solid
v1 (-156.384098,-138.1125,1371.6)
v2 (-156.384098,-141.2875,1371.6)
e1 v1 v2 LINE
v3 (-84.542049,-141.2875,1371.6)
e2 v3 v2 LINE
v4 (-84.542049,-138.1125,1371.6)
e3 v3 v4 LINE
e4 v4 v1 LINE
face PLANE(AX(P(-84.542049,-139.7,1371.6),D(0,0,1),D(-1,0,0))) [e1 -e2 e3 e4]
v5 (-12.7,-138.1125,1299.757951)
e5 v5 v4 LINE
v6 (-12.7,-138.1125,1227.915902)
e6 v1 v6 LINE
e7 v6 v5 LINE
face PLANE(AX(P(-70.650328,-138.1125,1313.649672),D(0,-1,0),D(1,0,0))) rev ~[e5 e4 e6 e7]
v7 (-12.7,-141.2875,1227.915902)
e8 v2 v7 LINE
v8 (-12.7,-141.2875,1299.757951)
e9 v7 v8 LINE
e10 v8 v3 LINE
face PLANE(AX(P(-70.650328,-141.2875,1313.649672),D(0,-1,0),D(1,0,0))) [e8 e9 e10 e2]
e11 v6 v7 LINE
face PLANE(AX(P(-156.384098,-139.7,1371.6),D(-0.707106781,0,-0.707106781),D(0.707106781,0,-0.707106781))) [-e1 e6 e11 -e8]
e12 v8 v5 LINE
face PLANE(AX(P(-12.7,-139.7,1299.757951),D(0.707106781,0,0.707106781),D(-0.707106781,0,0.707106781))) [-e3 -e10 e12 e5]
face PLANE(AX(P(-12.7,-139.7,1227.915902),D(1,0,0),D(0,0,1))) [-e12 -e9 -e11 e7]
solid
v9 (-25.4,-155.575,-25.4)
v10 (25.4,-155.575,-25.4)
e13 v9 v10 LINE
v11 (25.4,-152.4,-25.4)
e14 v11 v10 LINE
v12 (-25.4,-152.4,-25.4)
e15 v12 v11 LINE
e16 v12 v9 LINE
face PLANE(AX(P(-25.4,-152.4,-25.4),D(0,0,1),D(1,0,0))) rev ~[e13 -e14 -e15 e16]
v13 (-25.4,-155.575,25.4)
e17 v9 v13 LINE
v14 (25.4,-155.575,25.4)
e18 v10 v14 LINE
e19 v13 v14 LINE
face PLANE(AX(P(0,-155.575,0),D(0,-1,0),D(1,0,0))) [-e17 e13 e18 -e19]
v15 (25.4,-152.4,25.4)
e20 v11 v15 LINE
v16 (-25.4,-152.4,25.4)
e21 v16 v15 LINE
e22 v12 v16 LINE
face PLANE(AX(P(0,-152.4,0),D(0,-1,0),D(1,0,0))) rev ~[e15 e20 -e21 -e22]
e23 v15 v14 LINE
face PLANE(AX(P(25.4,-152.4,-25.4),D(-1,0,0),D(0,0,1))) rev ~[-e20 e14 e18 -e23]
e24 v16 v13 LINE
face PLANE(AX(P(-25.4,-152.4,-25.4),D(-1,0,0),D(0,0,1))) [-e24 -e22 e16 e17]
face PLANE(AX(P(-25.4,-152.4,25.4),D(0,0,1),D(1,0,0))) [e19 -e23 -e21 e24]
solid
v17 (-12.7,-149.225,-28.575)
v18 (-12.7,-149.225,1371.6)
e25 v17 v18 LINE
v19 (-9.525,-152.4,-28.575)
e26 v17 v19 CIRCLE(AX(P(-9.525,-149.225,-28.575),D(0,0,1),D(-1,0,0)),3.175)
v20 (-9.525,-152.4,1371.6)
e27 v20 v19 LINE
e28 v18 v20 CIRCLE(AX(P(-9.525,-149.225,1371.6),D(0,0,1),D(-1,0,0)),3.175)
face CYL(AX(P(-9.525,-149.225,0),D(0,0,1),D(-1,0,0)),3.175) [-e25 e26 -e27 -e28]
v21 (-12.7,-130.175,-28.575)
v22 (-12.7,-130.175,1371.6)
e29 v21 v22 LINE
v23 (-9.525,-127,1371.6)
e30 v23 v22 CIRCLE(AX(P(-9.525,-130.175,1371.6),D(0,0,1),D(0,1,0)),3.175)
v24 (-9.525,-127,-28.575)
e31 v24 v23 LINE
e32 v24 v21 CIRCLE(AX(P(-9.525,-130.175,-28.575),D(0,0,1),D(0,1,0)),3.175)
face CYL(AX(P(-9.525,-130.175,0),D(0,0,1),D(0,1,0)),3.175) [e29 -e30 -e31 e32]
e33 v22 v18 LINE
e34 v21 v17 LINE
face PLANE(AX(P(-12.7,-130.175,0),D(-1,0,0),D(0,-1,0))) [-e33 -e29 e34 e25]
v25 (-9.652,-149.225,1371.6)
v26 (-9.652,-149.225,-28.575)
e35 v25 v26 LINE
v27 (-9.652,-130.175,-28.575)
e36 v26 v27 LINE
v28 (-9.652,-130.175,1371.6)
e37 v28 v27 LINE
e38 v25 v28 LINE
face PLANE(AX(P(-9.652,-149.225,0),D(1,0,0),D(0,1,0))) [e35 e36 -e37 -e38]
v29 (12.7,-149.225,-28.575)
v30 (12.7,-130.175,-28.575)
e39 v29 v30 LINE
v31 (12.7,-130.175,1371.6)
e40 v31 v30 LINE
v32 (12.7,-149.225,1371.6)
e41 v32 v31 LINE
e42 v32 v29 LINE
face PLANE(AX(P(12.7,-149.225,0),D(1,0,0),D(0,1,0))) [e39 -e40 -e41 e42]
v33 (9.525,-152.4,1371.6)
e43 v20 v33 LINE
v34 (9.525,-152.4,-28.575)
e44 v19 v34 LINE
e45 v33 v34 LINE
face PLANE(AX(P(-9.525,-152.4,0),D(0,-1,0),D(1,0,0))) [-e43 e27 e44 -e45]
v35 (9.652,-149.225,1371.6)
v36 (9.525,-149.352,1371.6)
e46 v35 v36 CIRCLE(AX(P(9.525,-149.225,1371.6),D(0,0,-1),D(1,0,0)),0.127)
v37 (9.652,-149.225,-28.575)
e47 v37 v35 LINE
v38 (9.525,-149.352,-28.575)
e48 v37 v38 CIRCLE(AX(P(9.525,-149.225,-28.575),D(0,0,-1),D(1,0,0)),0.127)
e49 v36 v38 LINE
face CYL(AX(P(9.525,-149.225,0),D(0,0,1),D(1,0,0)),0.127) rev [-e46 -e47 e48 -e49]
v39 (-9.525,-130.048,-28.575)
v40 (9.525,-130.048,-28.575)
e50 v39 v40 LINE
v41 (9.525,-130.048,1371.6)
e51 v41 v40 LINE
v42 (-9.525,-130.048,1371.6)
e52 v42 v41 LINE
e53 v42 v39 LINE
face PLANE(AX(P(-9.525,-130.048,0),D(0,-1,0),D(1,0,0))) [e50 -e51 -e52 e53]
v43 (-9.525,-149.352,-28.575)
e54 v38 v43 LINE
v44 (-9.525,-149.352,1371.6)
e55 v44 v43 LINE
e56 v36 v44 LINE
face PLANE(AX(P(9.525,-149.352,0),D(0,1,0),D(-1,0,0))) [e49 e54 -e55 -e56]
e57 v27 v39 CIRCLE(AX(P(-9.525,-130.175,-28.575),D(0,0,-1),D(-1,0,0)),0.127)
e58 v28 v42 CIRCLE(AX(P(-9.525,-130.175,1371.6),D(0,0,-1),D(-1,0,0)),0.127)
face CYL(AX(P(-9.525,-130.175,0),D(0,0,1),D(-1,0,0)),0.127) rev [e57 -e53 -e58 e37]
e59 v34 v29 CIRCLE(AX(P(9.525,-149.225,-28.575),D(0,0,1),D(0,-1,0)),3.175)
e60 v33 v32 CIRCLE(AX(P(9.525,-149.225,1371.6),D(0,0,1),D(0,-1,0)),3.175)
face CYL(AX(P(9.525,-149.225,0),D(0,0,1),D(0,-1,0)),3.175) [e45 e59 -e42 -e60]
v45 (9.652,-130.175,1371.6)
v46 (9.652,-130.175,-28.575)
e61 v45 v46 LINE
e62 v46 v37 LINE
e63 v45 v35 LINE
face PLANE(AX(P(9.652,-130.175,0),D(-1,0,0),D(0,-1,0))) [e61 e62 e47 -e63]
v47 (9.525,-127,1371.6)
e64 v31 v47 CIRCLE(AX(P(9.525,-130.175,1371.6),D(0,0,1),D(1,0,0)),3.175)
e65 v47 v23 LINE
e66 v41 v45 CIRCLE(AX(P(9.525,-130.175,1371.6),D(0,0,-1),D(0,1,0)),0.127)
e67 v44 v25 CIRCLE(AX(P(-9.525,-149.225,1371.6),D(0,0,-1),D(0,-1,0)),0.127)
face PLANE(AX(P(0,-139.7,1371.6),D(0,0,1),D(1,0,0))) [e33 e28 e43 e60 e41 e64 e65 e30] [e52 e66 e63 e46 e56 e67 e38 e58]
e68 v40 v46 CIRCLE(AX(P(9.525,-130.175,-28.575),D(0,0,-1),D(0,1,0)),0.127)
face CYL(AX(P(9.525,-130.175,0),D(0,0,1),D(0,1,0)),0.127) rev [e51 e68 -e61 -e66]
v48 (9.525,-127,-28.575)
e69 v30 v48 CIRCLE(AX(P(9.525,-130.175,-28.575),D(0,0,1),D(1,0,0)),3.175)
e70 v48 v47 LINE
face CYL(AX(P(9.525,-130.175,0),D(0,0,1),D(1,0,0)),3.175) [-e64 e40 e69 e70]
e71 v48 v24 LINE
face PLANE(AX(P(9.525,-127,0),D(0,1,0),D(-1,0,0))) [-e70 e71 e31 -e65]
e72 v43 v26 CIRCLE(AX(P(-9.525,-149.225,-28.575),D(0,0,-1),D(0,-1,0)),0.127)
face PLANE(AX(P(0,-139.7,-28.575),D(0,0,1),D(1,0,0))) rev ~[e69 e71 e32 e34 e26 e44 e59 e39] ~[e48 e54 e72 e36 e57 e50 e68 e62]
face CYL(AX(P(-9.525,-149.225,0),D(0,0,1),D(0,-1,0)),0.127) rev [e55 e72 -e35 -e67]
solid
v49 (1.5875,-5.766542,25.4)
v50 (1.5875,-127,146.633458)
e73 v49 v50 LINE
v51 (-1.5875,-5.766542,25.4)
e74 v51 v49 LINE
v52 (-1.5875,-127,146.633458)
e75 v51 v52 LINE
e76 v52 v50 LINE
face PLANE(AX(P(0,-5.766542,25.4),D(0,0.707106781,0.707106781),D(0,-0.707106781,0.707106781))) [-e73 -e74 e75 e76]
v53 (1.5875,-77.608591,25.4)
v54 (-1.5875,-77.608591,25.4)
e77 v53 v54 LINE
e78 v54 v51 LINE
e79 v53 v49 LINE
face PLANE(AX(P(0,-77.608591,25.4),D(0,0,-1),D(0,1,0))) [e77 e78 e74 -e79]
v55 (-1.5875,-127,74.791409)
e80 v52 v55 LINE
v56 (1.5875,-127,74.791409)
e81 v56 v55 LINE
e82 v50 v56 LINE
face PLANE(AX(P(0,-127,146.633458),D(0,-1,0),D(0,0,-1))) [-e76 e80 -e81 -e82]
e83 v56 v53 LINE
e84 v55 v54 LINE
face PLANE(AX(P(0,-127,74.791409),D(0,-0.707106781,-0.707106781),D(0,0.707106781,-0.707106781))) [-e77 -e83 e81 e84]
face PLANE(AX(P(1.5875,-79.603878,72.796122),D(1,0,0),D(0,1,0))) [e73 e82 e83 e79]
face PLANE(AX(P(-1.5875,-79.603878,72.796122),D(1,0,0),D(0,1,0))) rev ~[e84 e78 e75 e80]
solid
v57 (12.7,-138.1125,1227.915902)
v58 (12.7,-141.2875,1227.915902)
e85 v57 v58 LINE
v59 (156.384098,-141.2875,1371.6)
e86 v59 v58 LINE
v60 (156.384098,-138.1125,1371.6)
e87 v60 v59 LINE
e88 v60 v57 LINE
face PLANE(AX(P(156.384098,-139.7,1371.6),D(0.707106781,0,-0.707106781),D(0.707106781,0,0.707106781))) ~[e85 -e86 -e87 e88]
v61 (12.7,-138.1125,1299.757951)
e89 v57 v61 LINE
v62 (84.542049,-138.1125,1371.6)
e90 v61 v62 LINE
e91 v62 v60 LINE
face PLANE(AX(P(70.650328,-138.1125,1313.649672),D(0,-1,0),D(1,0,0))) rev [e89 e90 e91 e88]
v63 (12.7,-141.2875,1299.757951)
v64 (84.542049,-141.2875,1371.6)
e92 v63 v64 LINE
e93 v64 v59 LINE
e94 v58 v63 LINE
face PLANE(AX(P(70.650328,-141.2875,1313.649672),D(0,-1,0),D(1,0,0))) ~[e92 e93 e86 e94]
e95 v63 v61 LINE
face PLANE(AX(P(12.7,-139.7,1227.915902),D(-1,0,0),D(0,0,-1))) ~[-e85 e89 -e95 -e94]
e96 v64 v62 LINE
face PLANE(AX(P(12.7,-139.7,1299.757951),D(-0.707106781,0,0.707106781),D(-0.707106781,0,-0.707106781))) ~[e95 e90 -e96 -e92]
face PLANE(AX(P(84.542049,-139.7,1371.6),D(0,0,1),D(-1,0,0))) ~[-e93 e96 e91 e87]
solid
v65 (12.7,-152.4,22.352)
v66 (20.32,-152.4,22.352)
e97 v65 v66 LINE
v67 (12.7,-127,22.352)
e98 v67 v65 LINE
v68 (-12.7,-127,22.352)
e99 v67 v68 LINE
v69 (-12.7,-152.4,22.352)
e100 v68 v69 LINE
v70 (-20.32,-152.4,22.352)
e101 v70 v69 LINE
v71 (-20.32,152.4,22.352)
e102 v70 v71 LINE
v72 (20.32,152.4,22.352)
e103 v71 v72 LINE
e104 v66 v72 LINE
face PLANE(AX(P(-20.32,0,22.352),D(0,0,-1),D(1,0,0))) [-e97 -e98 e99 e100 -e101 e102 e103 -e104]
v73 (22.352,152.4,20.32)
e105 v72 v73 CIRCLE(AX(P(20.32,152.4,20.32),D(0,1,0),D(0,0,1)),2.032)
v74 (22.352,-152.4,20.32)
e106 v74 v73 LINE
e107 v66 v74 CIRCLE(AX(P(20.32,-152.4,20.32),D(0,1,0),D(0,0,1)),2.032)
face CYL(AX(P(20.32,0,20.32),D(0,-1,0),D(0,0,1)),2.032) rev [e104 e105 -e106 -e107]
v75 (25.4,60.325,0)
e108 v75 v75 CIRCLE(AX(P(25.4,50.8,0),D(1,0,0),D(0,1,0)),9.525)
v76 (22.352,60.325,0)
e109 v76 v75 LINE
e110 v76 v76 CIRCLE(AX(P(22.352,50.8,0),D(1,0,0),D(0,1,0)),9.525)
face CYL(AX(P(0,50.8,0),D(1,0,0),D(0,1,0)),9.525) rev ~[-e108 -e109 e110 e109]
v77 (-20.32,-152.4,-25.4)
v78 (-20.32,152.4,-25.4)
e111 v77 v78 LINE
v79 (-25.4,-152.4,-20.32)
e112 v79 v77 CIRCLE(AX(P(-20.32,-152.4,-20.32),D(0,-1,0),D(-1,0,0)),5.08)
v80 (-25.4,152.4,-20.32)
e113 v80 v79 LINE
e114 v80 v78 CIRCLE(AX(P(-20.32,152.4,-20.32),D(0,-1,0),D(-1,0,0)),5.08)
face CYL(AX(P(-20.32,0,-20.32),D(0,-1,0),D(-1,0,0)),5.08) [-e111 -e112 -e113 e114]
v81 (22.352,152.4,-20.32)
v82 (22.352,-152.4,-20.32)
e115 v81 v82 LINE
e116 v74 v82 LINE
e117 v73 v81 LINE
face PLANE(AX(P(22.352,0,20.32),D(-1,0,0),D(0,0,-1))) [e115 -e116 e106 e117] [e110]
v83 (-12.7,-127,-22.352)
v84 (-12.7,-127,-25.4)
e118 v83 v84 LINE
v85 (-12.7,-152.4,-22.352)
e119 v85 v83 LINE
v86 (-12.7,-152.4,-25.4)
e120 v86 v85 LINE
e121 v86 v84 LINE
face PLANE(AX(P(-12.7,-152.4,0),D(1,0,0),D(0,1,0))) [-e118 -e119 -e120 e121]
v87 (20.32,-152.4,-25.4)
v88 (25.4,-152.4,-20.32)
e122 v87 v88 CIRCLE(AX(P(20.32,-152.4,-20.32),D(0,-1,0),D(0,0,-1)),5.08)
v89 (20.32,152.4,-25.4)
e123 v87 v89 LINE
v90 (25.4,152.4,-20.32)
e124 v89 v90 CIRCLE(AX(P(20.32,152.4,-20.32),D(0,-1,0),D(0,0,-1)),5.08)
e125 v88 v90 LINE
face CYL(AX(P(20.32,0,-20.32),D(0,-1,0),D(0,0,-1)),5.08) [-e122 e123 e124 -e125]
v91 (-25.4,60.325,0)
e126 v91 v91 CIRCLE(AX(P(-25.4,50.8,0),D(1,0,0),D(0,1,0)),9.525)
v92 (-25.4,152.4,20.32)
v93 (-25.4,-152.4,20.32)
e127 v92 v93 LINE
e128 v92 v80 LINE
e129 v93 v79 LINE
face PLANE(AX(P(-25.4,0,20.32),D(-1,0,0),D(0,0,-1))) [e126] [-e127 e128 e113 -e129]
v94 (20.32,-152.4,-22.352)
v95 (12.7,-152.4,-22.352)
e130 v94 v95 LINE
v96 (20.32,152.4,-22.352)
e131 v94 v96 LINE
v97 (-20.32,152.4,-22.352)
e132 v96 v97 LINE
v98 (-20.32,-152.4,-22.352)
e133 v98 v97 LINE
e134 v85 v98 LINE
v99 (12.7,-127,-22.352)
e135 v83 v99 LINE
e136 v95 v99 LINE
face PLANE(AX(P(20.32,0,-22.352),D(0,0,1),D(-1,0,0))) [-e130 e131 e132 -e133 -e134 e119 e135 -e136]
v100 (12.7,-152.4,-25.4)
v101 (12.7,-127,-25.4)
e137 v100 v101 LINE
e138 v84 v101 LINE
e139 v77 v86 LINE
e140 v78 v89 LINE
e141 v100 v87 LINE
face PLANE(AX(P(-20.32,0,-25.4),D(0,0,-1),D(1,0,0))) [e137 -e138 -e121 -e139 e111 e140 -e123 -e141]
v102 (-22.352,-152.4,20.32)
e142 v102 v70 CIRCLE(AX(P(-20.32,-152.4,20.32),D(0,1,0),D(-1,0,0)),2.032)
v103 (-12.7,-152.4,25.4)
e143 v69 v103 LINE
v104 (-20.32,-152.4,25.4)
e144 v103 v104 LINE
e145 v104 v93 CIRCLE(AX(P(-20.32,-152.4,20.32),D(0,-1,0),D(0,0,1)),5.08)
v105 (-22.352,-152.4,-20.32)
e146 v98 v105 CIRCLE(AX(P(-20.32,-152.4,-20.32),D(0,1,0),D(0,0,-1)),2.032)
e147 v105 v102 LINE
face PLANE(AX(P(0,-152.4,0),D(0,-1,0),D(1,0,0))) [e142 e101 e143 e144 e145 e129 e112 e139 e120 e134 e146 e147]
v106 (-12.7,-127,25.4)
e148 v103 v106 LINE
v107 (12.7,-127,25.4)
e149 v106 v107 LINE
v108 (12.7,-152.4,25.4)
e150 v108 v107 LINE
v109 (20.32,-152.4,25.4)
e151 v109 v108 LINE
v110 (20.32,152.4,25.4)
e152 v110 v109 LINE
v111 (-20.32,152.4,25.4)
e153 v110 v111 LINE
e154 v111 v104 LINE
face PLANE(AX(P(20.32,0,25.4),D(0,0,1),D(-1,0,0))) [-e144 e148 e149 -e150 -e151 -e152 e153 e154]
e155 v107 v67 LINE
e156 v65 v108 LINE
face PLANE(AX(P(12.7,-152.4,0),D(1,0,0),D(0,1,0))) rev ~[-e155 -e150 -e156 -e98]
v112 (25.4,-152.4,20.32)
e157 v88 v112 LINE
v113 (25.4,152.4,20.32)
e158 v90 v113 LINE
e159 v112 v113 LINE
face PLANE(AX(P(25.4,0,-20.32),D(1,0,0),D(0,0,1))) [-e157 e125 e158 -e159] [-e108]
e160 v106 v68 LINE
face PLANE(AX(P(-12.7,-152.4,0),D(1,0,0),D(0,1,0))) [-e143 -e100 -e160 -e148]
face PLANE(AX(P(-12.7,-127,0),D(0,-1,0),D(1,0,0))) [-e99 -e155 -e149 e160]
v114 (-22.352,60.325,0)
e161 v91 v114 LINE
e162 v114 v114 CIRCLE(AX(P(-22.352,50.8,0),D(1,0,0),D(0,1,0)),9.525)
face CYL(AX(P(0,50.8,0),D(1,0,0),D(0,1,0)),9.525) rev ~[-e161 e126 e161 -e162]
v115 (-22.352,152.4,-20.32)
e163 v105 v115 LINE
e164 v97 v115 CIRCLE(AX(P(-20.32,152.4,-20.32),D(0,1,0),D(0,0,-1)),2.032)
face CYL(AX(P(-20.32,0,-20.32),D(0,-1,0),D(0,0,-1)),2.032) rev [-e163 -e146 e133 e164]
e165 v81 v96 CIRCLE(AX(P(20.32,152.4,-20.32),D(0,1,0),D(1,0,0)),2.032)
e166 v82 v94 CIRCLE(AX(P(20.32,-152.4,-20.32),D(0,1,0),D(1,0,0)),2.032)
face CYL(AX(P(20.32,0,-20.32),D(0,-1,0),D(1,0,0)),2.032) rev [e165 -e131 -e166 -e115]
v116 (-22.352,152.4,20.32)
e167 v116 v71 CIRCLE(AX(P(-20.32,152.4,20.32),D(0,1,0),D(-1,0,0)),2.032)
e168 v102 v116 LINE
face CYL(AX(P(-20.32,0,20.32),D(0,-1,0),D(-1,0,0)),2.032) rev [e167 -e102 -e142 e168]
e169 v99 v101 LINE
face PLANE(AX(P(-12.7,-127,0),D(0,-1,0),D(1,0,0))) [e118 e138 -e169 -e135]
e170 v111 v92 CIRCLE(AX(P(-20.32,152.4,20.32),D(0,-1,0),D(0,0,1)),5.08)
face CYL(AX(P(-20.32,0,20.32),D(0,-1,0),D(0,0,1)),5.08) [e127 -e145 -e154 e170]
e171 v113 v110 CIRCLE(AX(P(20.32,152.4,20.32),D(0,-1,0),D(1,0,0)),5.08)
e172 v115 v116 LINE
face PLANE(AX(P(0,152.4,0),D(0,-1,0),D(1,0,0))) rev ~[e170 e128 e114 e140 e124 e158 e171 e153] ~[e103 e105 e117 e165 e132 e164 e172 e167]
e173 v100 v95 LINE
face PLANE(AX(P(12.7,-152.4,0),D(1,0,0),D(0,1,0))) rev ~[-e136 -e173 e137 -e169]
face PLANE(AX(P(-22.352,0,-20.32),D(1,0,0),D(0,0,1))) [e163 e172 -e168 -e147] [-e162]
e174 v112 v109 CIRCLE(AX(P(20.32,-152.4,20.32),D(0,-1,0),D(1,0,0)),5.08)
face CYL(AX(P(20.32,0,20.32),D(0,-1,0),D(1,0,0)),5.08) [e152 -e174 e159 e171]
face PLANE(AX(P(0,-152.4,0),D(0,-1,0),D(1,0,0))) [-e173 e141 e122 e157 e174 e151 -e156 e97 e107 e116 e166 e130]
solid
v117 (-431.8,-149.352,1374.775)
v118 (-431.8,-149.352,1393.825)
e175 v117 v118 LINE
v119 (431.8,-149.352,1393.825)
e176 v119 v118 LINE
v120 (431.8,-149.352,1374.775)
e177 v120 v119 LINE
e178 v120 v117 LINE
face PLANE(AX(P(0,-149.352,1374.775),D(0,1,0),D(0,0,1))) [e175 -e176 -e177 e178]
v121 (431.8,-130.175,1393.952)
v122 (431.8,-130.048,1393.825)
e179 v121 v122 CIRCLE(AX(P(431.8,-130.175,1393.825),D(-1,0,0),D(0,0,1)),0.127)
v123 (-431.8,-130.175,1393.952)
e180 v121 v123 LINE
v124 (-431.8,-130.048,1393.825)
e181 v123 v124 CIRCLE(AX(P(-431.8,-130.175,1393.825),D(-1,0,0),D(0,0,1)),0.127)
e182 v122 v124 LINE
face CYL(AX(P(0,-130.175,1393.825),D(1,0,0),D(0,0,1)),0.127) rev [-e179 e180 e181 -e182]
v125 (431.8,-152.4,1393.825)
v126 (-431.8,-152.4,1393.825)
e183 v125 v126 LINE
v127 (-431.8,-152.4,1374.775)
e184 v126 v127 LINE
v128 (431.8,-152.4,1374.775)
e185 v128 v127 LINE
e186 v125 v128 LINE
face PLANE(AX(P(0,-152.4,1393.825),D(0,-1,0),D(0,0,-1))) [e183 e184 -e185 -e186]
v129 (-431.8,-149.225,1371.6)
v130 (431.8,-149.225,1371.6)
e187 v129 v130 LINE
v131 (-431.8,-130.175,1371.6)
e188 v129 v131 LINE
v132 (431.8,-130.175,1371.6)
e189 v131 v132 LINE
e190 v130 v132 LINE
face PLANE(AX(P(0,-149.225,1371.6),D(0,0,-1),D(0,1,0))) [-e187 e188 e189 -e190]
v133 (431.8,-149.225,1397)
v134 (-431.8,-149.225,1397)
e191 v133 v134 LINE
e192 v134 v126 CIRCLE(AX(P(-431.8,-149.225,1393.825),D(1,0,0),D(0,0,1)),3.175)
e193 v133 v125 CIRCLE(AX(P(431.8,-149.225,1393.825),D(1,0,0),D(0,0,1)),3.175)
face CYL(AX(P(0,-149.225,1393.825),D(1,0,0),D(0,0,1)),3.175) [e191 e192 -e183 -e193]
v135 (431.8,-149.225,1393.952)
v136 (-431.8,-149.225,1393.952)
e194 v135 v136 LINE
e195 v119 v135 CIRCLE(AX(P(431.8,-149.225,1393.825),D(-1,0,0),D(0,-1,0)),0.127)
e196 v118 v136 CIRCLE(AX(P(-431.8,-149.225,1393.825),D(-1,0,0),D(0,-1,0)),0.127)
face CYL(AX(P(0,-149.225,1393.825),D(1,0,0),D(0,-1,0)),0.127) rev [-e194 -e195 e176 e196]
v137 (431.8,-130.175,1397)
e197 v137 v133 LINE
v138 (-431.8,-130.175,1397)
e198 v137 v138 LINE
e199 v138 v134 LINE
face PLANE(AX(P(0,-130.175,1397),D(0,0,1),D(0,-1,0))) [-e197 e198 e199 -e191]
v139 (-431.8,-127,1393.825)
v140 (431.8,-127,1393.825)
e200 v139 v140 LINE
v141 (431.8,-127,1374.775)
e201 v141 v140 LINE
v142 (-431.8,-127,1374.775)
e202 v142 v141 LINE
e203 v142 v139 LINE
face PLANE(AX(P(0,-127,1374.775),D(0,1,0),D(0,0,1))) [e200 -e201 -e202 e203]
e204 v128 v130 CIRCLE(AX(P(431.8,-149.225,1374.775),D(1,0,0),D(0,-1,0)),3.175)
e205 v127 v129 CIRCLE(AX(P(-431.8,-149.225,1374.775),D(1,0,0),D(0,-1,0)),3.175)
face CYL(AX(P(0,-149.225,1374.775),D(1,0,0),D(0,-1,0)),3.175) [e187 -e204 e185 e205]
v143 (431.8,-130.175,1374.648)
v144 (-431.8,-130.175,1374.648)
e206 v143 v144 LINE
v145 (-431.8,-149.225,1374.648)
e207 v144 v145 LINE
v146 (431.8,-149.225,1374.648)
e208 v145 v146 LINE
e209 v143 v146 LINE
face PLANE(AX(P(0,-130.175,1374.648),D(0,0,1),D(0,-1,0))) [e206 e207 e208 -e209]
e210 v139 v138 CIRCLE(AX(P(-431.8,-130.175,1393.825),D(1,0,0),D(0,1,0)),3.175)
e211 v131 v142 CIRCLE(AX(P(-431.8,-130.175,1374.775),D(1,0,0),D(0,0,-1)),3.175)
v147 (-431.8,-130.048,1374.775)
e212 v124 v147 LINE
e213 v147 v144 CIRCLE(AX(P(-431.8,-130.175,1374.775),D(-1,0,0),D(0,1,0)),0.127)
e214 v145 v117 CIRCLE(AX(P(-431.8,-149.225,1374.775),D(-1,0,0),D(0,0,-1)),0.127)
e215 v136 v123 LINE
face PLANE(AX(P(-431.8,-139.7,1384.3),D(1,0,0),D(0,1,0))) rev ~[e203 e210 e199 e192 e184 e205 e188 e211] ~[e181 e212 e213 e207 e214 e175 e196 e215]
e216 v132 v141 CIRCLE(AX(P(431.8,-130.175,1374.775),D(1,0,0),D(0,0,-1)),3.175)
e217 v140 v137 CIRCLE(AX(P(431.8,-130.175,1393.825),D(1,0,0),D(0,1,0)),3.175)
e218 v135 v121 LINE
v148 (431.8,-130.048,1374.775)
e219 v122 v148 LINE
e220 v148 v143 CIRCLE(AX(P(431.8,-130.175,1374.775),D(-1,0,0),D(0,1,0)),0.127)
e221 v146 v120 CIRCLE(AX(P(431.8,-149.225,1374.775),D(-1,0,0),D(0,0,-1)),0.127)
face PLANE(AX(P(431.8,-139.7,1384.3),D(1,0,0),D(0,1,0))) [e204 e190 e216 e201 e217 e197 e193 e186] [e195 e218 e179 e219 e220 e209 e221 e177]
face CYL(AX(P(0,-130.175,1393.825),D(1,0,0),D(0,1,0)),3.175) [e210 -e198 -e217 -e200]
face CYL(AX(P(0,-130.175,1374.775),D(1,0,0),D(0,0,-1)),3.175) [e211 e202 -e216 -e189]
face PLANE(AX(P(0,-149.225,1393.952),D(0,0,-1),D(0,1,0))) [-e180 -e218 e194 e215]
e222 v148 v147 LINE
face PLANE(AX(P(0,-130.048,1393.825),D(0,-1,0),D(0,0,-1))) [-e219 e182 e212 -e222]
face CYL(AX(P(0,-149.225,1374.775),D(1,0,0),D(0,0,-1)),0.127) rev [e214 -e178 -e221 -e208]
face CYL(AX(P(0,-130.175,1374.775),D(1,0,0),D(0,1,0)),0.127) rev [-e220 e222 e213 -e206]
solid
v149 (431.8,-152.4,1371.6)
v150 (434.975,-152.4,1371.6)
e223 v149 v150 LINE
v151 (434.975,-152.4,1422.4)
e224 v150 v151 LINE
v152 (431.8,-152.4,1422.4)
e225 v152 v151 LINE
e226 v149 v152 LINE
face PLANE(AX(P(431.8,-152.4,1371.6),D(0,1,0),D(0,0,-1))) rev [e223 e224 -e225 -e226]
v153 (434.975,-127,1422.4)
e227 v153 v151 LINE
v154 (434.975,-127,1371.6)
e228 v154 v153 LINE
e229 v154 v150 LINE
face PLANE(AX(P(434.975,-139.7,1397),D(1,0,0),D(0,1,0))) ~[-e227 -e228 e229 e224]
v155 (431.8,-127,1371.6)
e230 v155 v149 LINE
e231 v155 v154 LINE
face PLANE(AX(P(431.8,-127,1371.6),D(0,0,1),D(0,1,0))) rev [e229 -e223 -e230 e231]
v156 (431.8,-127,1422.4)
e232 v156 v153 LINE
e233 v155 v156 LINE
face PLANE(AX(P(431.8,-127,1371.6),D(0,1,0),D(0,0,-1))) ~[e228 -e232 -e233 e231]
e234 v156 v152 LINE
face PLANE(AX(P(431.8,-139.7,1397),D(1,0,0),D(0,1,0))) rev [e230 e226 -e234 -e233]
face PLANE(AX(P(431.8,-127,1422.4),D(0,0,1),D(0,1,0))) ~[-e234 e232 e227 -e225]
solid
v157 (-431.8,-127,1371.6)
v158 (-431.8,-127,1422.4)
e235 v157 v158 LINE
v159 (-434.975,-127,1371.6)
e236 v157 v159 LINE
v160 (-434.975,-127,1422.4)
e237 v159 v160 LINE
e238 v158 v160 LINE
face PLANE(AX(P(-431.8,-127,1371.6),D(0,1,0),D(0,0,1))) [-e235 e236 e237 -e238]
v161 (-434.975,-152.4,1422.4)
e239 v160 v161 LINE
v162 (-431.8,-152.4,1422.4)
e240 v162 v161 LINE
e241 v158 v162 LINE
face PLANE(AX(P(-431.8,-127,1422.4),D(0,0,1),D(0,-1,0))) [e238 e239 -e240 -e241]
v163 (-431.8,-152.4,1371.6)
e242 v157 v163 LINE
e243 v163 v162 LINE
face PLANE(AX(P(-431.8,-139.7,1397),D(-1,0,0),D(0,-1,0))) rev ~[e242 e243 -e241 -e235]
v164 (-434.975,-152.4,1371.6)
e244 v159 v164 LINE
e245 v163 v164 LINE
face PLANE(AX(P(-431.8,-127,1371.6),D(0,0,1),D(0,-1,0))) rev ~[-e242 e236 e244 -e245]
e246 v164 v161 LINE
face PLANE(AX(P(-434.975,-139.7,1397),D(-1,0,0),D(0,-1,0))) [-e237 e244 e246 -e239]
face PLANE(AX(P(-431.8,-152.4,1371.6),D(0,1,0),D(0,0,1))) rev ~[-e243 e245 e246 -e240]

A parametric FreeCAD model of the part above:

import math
import FreeCAD as App
import Part
import Sketcher
from FreeCAD import Vector
Q = App.Units.Quantity


def add_polygon(sketch, points):
    """Adds a closed chain of lines whose ends are joined by coincident constraints."""
    first, n = sketch.GeometryCount, len(points)
    for a, b in zip(points, points[1:] + points[:1]):
        sketch.addGeometry(Part.LineSegment(App.Vector(*a, 0), App.Vector(*b, 0)), False)
    for i in range(n):
        sketch.addConstraint(Sketcher.Constraint("Coincident", first + i, 2, first + (i + 1) % n, 1))

doc = App.newDocument("Part")
body = doc.addObject("PartDesign::Body", "Body")

# Sketch on XZ plane
sketch1 = doc.addObject("Sketcher::SketchObject", "Sketch")
body.addObject(sketch1)
sketch1.AttachmentSupport = (doc.XZ_Plane, [""])
sketch1.MapMode = "FlatFace"
sketch1.addGeometry(Part.ArcOfCircle(Part.Circle(Vector(20.3, 20.3, 0), Vector(0, 0, 1), 5.1), math.radians(0), math.radians(90)), False)
sketch1.addGeometry(Part.LineSegment(Vector(20.3, 25.4, 0), Vector(-20.3, 25.4, 0)), False)
sketch1.addGeometry(Part.ArcOfCircle(Part.Circle(Vector(-20.3, 20.3, 0), Vector(0, 0, 1), 5.1), math.radians(90), math.radians(180)), False)
sketch1.addGeometry(Part.LineSegment(Vector(-25.4, 20.3, 0), Vector(-25.4, -20.3, 0)), False)
sketch1.addGeometry(Part.ArcOfCircle(Part.Circle(Vector(-20.3, -20.3, 0), Vector(0, 0, 1), 5.1), math.radians(180), math.radians(270)), False)
sketch1.addGeometry(Part.LineSegment(Vector(-20.3, -25.4, 0), Vector(20.3, -25.4, 0)), False)
sketch1.addGeometry(Part.ArcOfCircle(Part.Circle(Vector(20.3, -20.3, 0), Vector(0, 0, 1), 5.1), math.radians(-90), math.radians(0)), False)
sketch1.addGeometry(Part.LineSegment(Vector(25.4, -20.3, 0), Vector(25.4, 20.3, 0)), False)
sketch1.addGeometry(Part.LineSegment(Vector(22.4, 20.3, 0), Vector(22.4, -20.3, 0)), False)
sketch1.addGeometry(Part.ArcOfCircle(Part.Circle(Vector(20.3, -20.3, 0), Vector(0, 0, 1), 2), math.radians(-90), math.radians(0)), False)
sketch1.addGeometry(Part.LineSegment(Vector(20.3, -22.4, 0), Vector(-20.3, -22.4, 0)), False)
sketch1.addGeometry(Part.ArcOfCircle(Part.Circle(Vector(-20.3, -20.3, 0), Vector(0, 0, 1), 2), math.radians(180), math.radians(270)), False)
sketch1.addGeometry(Part.LineSegment(Vector(-22.4, -20.3, 0), Vector(-22.4, 20.3, 0)), False)
sketch1.addGeometry(Part.ArcOfCircle(Part.Circle(Vector(-20.3, 20.3, 0), Vector(0, 0, 1), 2), math.radians(90), math.radians(180)), False)
sketch1.addGeometry(Part.LineSegment(Vector(-20.3, 22.4, 0), Vector(20.3, 22.4, 0)), False)
sketch1.addGeometry(Part.ArcOfCircle(Part.Circle(Vector(20.3, 20.3, 0), Vector(0, 0, 1), 2), math.radians(0), math.radians(90)), False)
sketch1.addConstraint(Sketcher.Constraint("Tangent", 0, 2, 1, 1))
sketch1.addConstraint(Sketcher.Constraint("Tangent", 1, 2, 2, 1))
sketch1.addConstraint(Sketcher.Constraint("Tangent", 2, 2, 3, 1))
sketch1.addConstraint(Sketcher.Constraint("Tangent", 3, 2, 4, 1))
sketch1.addConstraint(Sketcher.Constraint("Tangent", 4, 2, 5, 1))
sketch1.addConstraint(Sketcher.Constraint("Tangent", 5, 2, 6, 1))
sketch1.addConstraint(Sketcher.Constraint("Tangent", 6, 2, 7, 1))
sketch1.addConstraint(Sketcher.Constraint("Tangent", 7, 2, 0, 1))
sketch1.addConstraint(Sketcher.Constraint("Tangent", 8, 2, 9, 2))
sketch1.addConstraint(Sketcher.Constraint("Tangent", 9, 1, 10, 1))
sketch1.addConstraint(Sketcher.Constraint("Tangent", 10, 2, 11, 2))
sketch1.addConstraint(Sketcher.Constraint("Tangent", 11, 1, 12, 1))
sketch1.addConstraint(Sketcher.Constraint("Tangent", 12, 2, 13, 2))
sketch1.addConstraint(Sketcher.Constraint("Tangent", 13, 1, 14, 1))
sketch1.addConstraint(Sketcher.Constraint("Tangent", 14, 2, 15, 2))
sketch1.addConstraint(Sketcher.Constraint("Tangent", 15, 1, 8, 1))
sketch1.addConstraint(Sketcher.Constraint("Horizontal", 1))
sketch1.addConstraint(Sketcher.Constraint("Vertical", 3))
sketch1.addConstraint(Sketcher.Constraint("Horizontal", 5))
sketch1.addConstraint(Sketcher.Constraint("Vertical", 7))
sketch1.addConstraint(Sketcher.Constraint("Vertical", 8))
sketch1.addConstraint(Sketcher.Constraint("Horizontal", 10))
sketch1.addConstraint(Sketcher.Constraint("Vertical", 12))
sketch1.addConstraint(Sketcher.Constraint("Horizontal", 14))
sketch1.addConstraint(Sketcher.Constraint("Coincident", 9, 3, 6, 3))
sketch1.addConstraint(Sketcher.Constraint("Coincident", 11, 3, 4, 3))
sketch1.addConstraint(Sketcher.Constraint("Coincident", 13, 3, 2, 3))
sketch1.addConstraint(Sketcher.Constraint("Equal", 0, 2))
sketch1.addConstraint(Sketcher.Constraint("Equal", 2, 4))
sketch1.addConstraint(Sketcher.Constraint("Equal", 4, 6))
sketch1.addConstraint(Sketcher.Constraint("Equal", 13, 15))
sketch1.addConstraint(Sketcher.Constraint("Symmetric", 0, 3, 4, 3, -1, 1))
sketch1.addConstraint(Sketcher.Constraint("Equal", 14, 3))
sketch1.addConstraint(Sketcher.Constraint("Radius", 0, Q("0.2 in")))
sketch1.addConstraint(Sketcher.Constraint("Radius", 9, Q("0.08 in")))
sketch1.addConstraint(Sketcher.Constraint("DistanceX", 1, 2, 1, 1, Q("1.6 in")))
pad1 = doc.addObject("PartDesign::Pad", "Pad")
body.addObject(pad1)
pad1.Profile = sketch1
pad1.Length = Q("12 in")
pad1.Midplane = True

# Sketch on XY plane
sketch2 = doc.addObject("Sketcher::SketchObject", "Sketch001")
body.addObject(sketch2)
sketch2.AttachmentSupport = (doc.XY_Plane, [""])
sketch2.MapMode = "FlatFace"
add_polygon(sketch2, [(-13, -127), (-13, -152), (13, -152), (13, -127)])  # lines 0-3
sketch2.addConstraint(Sketcher.Constraint("Vertical", 0))
sketch2.addConstraint(Sketcher.Constraint("Horizontal", 1))
sketch2.addConstraint(Sketcher.Constraint("Vertical", 2))
sketch2.addConstraint(Sketcher.Constraint("Horizontal", 3))
sketch2.addConstraint(Sketcher.Constraint("Equal", 3, 0))
sketch2.addConstraint(Sketcher.Constraint("DistanceX", 1, 1, 1, 2, Q("1 in")))
sketch2.addConstraint(Sketcher.Constraint("DistanceY", 0, 2, -1, 1, Q("6 in")))
sketch2.addConstraint(Sketcher.Constraint("DistanceX", 0, 2, -1, 1, Q("0.5 in")))
pocket1 = doc.addObject("PartDesign::Pocket", "Pocket")
body.addObject(pocket1)
pocket1.Profile = sketch2
pocket1.Length = Q("2 in")
pocket1.Midplane = True

# Sketch on YZ plane
sketch3 = doc.addObject("Sketcher::SketchObject", "Sketch002")
body.addObject(sketch3)
sketch3.AttachmentSupport = (doc.YZ_Plane, [""])
sketch3.MapMode = "FlatFace"
sketch3.addGeometry(Part.Circle(Vector(51, 0, 0), Vector(0, 0, 1), 10), False)
sketch3.addConstraint(Sketcher.Constraint("PointOnObject", 0, 3, -1))
sketch3.addConstraint(Sketcher.Constraint("Diameter", 0, Q("0.75 in")))
sketch3.addConstraint(Sketcher.Constraint("DistanceX", -1, 1, 0, 3, Q("2 in")))
pocket2 = doc.addObject("PartDesign::Pocket", "Pocket001")
body.addObject(pocket2)
pocket2.Profile = sketch3
pocket2.Length = Q("2 in")
pocket2.Midplane = True
body2 = doc.addObject("PartDesign::Body", "Body001")

# Sketch on XY plane
sketch4 = doc.addObject("Sketcher::SketchObject", "Sketch003")
body2.addObject(sketch4)
sketch4.AttachmentSupport = (doc.getObject("XY_Plane001"), [""])
sketch4.MapMode = "FlatFace"
sketch4.addGeometry(Part.ArcOfCircle(Part.Circle(Vector(9.53, -130.18, 0), Vector(0, 0, 1), 3.17), math.radians(0), math.radians(90)), False)
sketch4.addGeometry(Part.LineSegment(Vector(9.53, -127, 0), Vector(-9.53, -127, 0)), False)
sketch4.addGeometry(Part.ArcOfCircle(Part.Circle(Vector(-9.53, -130.18, 0), Vector(0, 0, 1), 3.17), math.radians(90), math.radians(180)), False)
sketch4.addGeometry(Part.LineSegment(Vector(-12.7, -130.18, 0), Vector(-12.7, -149.22, 0)), False)
sketch4.addGeometry(Part.ArcOfCircle(Part.Circle(Vector(-9.53, -149.22, 0), Vector(0, 0, 1), 3.17), math.radians(180), math.radians(270)), False)
sketch4.addGeometry(Part.LineSegment(Vector(-9.53, -152.4, 0), Vector(9.53, -152.4, 0)), False)
sketch4.addGeometry(Part.ArcOfCircle(Part.Circle(Vector(9.53, -149.22, 0), Vector(0, 0, 1), 3.17), math.radians(-90), math.radians(0)), False)
sketch4.addGeometry(Part.LineSegment(Vector(12.7, -149.22, 0), Vector(12.7, -130.18, 0)), False)
sketch4.addGeometry(Part.LineSegment(Vector(9.65, -130.18, 0), Vector(9.65, -149.22, 0)), False)
sketch4.addGeometry(Part.ArcOfCircle(Part.Circle(Vector(9.53, -149.22, 0), Vector(0, 0, 1), 0.13), math.radians(-90), math.radians(0)), False)
sketch4.addGeometry(Part.LineSegment(Vector(9.53, -149.35, 0), Vector(-9.53, -149.35, 0)), False)
sketch4.addGeometry(Part.ArcOfCircle(Part.Circle(Vector(-9.53, -149.22, 0), Vector(0, 0, 1), 0.13), math.radians(180), math.radians(270)), False)
sketch4.addGeometry(Part.LineSegment(Vector(-9.65, -149.22, 0), Vector(-9.65, -130.18, 0)), False)
sketch4.addGeometry(Part.ArcOfCircle(Part.Circle(Vector(-9.53, -130.18, 0), Vector(0, 0, 1), 0.13), math.radians(90), math.radians(180)), False)
sketch4.addGeometry(Part.LineSegment(Vector(-9.53, -130.05, 0), Vector(9.53, -130.05, 0)), False)
sketch4.addGeometry(Part.ArcOfCircle(Part.Circle(Vector(9.53, -130.18, 0), Vector(0, 0, 1), 0.13), math.radians(0), math.radians(90)), False)
sketch4.addConstraint(Sketcher.Constraint("Tangent", 0, 2, 1, 1))
sketch4.addConstraint(Sketcher.Constraint("Tangent", 1, 2, 2, 1))
sketch4.addConstraint(Sketcher.Constraint("Tangent", 2, 2, 3, 1))
sketch4.addConstraint(Sketcher.Constraint("Tangent", 3, 2, 4, 1))
sketch4.addConstraint(Sketcher.Constraint("Tangent", 4, 2, 5, 1))
sketch4.addConstraint(Sketcher.Constraint("Tangent", 5, 2, 6, 1))
sketch4.addConstraint(Sketcher.Constraint("Tangent", 6, 2, 7, 1))
sketch4.addConstraint(Sketcher.Constraint("Tangent", 7, 2, 0, 1))
sketch4.addConstraint(Sketcher.Constraint("Tangent", 8, 2, 9, 2))
sketch4.addConstraint(Sketcher.Constraint("Tangent", 9, 1, 10, 1))
sketch4.addConstraint(Sketcher.Constraint("Tangent", 10, 2, 11, 2))
sketch4.addConstraint(Sketcher.Constraint("Tangent", 11, 1, 12, 1))
sketch4.addConstraint(Sketcher.Constraint("Tangent", 12, 2, 13, 2))
sketch4.addConstraint(Sketcher.Constraint("Tangent", 13, 1, 14, 1))
sketch4.addConstraint(Sketcher.Constraint("Tangent", 14, 2, 15, 2))
sketch4.addConstraint(Sketcher.Constraint("Tangent", 15, 1, 8, 1))
sketch4.addConstraint(Sketcher.Constraint("Horizontal", 1))
sketch4.addConstraint(Sketcher.Constraint("Vertical", 3))
sketch4.addConstraint(Sketcher.Constraint("Horizontal", 5))
sketch4.addConstraint(Sketcher.Constraint("Vertical", 7))
sketch4.addConstraint(Sketcher.Constraint("Vertical", 8))
sketch4.addConstraint(Sketcher.Constraint("Horizontal", 10))
sketch4.addConstraint(Sketcher.Constraint("Vertical", 12))
sketch4.addConstraint(Sketcher.Constraint("Horizontal", 14))
sketch4.addConstraint(Sketcher.Constraint("Coincident", 9, 3, 6, 3))
sketch4.addConstraint(Sketcher.Constraint("Coincident", 11, 3, 4, 3))
sketch4.addConstraint(Sketcher.Constraint("Coincident", 13, 3, 2, 3))
sketch4.addConstraint(Sketcher.Constraint("Equal", 0, 2))
sketch4.addConstraint(Sketcher.Constraint("Equal", 2, 4))
sketch4.addConstraint(Sketcher.Constraint("Equal", 4, 6))
sketch4.addConstraint(Sketcher.Constraint("Equal", 13, 15))
sketch4.addConstraint(Sketcher.Constraint("Equal", 14, 3))
sketch4.addConstraint(Sketcher.Constraint("DistanceY", 0, 2, -1, 1, Q("5 in")))
sketch4.addConstraint(Sketcher.Constraint("DistanceY", 4, 2, -1, 1, Q("6 in")))
sketch4.addConstraint(Sketcher.Constraint("Radius", 0, Q("0.125 in")))
sketch4.addConstraint(Sketcher.Constraint("Radius", 9, Q("0.005 in")))
sketch4.addConstraint(Sketcher.Constraint("DistanceX", 2, 2, -1, 1, Q("0.5 in")))
pad2 = doc.addObject("PartDesign::Pad", "Pad001")
body2.addObject(pad2)
pad2.Profile = sketch4
pad2.Length = Q("54 in")

# Sketch on XY plane
sketch5 = doc.addObject("Sketcher::SketchObject", "Sketch004")
body2.addObject(sketch5)
sketch5.AttachmentSupport = (doc.getObject("XY_Plane001"), [""])
sketch5.MapMode = "FlatFace"
sketch5.addGeometry(Part.ArcOfCircle(Part.Circle(Vector(9.53, -130.18, 0), Vector(0, 0, 1), 3.17), math.radians(0), math.radians(90)), False)
sketch5.addGeometry(Part.LineSegment(Vector(9.53, -127, 0), Vector(-9.53, -127, 0)), False)
sketch5.addGeometry(Part.ArcOfCircle(Part.Circle(Vector(-9.53, -130.18, 0), Vector(0, 0, 1), 3.17), math.radians(90), math.radians(180)), False)
sketch5.addGeometry(Part.LineSegment(Vector(-12.7, -130.18, 0), Vector(-12.7, -149.22, 0)), False)
sketch5.addGeometry(Part.ArcOfCircle(Part.Circle(Vector(-9.53, -149.22, 0), Vector(0, 0, 1), 3.17), math.radians(180), math.radians(270)), False)
sketch5.addGeometry(Part.LineSegment(Vector(-9.53, -152.4, 0), Vector(9.53, -152.4, 0)), False)
sketch5.addGeometry(Part.ArcOfCircle(Part.Circle(Vector(9.53, -149.22, 0), Vector(0, 0, 1), 3.17), math.radians(-90), math.radians(0)), False)
sketch5.addGeometry(Part.LineSegment(Vector(12.7, -149.22, 0), Vector(12.7, -130.18, 0)), False)
sketch5.addGeometry(Part.LineSegment(Vector(9.65, -130.18, 0), Vector(9.65, -149.22, 0)), False)
sketch5.addGeometry(Part.ArcOfCircle(Part.Circle(Vector(9.53, -149.22, 0), Vector(0, 0, 1), 0.13), math.radians(-90), math.radians(0)), False)
sketch5.addGeometry(Part.LineSegment(Vector(9.53, -149.35, 0), Vector(-9.53, -149.35, 0)), False)
sketch5.addGeometry(Part.ArcOfCircle(Part.Circle(Vector(-9.53, -149.22, 0), Vector(0, 0, 1), 0.13), math.radians(180), math.radians(270)), False)
sketch5.addGeometry(Part.LineSegment(Vector(-9.65, -149.22, 0), Vector(-9.65, -130.18, 0)), False)
sketch5.addGeometry(Part.ArcOfCircle(Part.Circle(Vector(-9.53, -130.18, 0), Vector(0, 0, 1), 0.13), math.radians(90), math.radians(180)), False)
sketch5.addGeometry(Part.LineSegment(Vector(-9.53, -130.05, 0), Vector(9.53, -130.05, 0)), False)
sketch5.addGeometry(Part.ArcOfCircle(Part.Circle(Vector(9.53, -130.18, 0), Vector(0, 0, 1), 0.13), math.radians(0), math.radians(90)), False)
sketch5.addConstraint(Sketcher.Constraint("Tangent", 0, 2, 1, 1))
sketch5.addConstraint(Sketcher.Constraint("Tangent", 1, 2, 2, 1))
sketch5.addConstraint(Sketcher.Constraint("Tangent", 2, 2, 3, 1))
sketch5.addConstraint(Sketcher.Constraint("Tangent", 3, 2, 4, 1))
sketch5.addConstraint(Sketcher.Constraint("Tangent", 4, 2, 5, 1))
sketch5.addConstraint(Sketcher.Constraint("Tangent", 5, 2, 6, 1))
sketch5.addConstraint(Sketcher.Constraint("Tangent", 6, 2, 7, 1))
sketch5.addConstraint(Sketcher.Constraint("Tangent", 7, 2, 0, 1))
sketch5.addConstraint(Sketcher.Constraint("Tangent", 8, 2, 9, 2))
sketch5.addConstraint(Sketcher.Constraint("Tangent", 9, 1, 10, 1))
sketch5.addConstraint(Sketcher.Constraint("Tangent", 10, 2, 11, 2))
sketch5.addConstraint(Sketcher.Constraint("Tangent", 11, 1, 12, 1))
sketch5.addConstraint(Sketcher.Constraint("Tangent", 12, 2, 13, 2))
sketch5.addConstraint(Sketcher.Constraint("Tangent", 13, 1, 14, 1))
sketch5.addConstraint(Sketcher.Constraint("Tangent", 14, 2, 15, 2))
sketch5.addConstraint(Sketcher.Constraint("Tangent", 15, 1, 8, 1))
sketch5.addConstraint(Sketcher.Constraint("Horizontal", 1))
sketch5.addConstraint(Sketcher.Constraint("Vertical", 3))
sketch5.addConstraint(Sketcher.Constraint("Horizontal", 5))
sketch5.addConstraint(Sketcher.Constraint("Vertical", 7))
sketch5.addConstraint(Sketcher.Constraint("Vertical", 8))
sketch5.addConstraint(Sketcher.Constraint("Horizontal", 10))
sketch5.addConstraint(Sketcher.Constraint("Vertical", 12))
sketch5.addConstraint(Sketcher.Constraint("Horizontal", 14))
sketch5.addConstraint(Sketcher.Constraint("Coincident", 9, 3, 6, 3))
sketch5.addConstraint(Sketcher.Constraint("Coincident", 11, 3, 4, 3))
sketch5.addConstraint(Sketcher.Constraint("Coincident", 13, 3, 2, 3))
sketch5.addConstraint(Sketcher.Constraint("Equal", 0, 2))
sketch5.addConstraint(Sketcher.Constraint("Equal", 2, 4))
sketch5.addConstraint(Sketcher.Constraint("Equal", 4, 6))
sketch5.addConstraint(Sketcher.Constraint("Equal", 13, 15))
sketch5.addConstraint(Sketcher.Constraint("Equal", 14, 3))
sketch5.addConstraint(Sketcher.Constraint("DistanceY", 0, 2, -1, 1, Q("5 in")))
sketch5.addConstraint(Sketcher.Constraint("DistanceY", 4, 2, -1, 1, Q("6 in")))
sketch5.addConstraint(Sketcher.Constraint("Radius", 0, Q("0.125 in")))
sketch5.addConstraint(Sketcher.Constraint("Radius", 9, Q("0.005 in")))
sketch5.addConstraint(Sketcher.Constraint("DistanceX", 2, 2, -1, 1, Q("0.5 in")))
pad3 = doc.addObject("PartDesign::Pad", "Pad002")
body2.addObject(pad3)
pad3.Profile = sketch5
pad3.Length = Q("1.125 in")
pad3.Reversed = True
body3 = doc.addObject("PartDesign::Body", "Body002")

# Sketch on XZ plane
sketch6 = doc.addObject("Sketcher::SketchObject", "Sketch005")
body3.addObject(sketch6)
sketch6.AttachmentSupport = (doc.getObject("XZ_Plane002"), [""])
sketch6.MapMode = "FlatFace"
sketch6.AttachmentOffset = App.Placement(Vector(0, 0, 6 * 25.4), App.Rotation())
add_polygon(sketch6, [(-25, 25), (-25, -25), (25, -25), (25, 25)])  # lines 0-3
sketch6.addConstraint(Sketcher.Constraint("Vertical", 0))
sketch6.addConstraint(Sketcher.Constraint("Horizontal", 1))
sketch6.addConstraint(Sketcher.Constraint("Vertical", 2))
sketch6.addConstraint(Sketcher.Constraint("Horizontal", 3))
sketch6.addConstraint(Sketcher.Constraint("Symmetric", 0, 2, 2, 2, -1, 1))
sketch6.addConstraint(Sketcher.Constraint("Equal", 3, 0))
sketch6.addConstraint(Sketcher.Constraint("DistanceX", 1, 1, 1, 2, Q("2 in")))
pad4 = doc.addObject("PartDesign::Pad", "Pad003")
body3.addObject(pad4)
pad4.Profile = sketch6
pad4.Length = Q("0.125 in")
body4 = doc.addObject("PartDesign::Body", "Body003")

# Sketch on YZ plane
sketch7 = doc.addObject("Sketcher::SketchObject", "Sketch006")
body4.addObject(sketch7)
sketch7.AttachmentSupport = (doc.getObject("YZ_Plane003"), [""])
sketch7.MapMode = "FlatFace"
add_polygon(sketch7, [(-78, 25), (-6, 25), (-127, 147), (-127, 75)])  # lines 0-3
sketch7.addConstraint(Sketcher.Constraint("Horizontal", 0))
sketch7.addConstraint(Sketcher.Constraint("Vertical", 2))
sketch7.addConstraint(Sketcher.Constraint("Parallel", 1, 3))
sketch7.addConstraint(Sketcher.Constraint("Equal", 0, 2))
sketch7.addConstraint(Sketcher.Constraint("DistanceY", -1, 1, 0, 2, Q("1 in")))
sketch7.addConstraint(Sketcher.Constraint("DistanceX", 1, 2, -1, 1, Q("5 in")))
sketch7.addConstraint(Sketcher.Constraint("Distance", 1, Q("6.75 in")))
sketch7.addConstraint(Sketcher.Constraint("Distance", 3, Q("2.75 in")))
pad5 = doc.addObject("PartDesign::Pad", "Pad004")
body4.addObject(pad5)
pad5.Profile = sketch7
pad5.Length = Q("0.125 in")
pad5.Midplane = True
body5 = doc.addObject("PartDesign::Body", "Body004")

# Sketch on YZ plane
sketch8 = doc.addObject("Sketcher::SketchObject", "Sketch007")
body5.addObject(sketch8)
sketch8.AttachmentSupport = (doc.getObject("YZ_Plane004"), [""])
sketch8.MapMode = "FlatFace"
sketch8.addGeometry(Part.ArcOfCircle(Part.Circle(Vector(-149.22, 1374.78, 0), Vector(0, 0, 1), 3.17), math.radians(180), math.radians(270)), False)
sketch8.addGeometry(Part.LineSegment(Vector(-149.22, 1371.6, 0), Vector(-130.18, 1371.6, 0)), False)
sketch8.addGeometry(Part.ArcOfCircle(Part.Circle(Vector(-130.18, 1374.78, 0), Vector(0, 0, 1), 3.17), math.radians(-90), math.radians(0)), False)
sketch8.addGeometry(Part.LineSegment(Vector(-127, 1374.78, 0), Vector(-127, 1393.83, 0)), False)
sketch8.addGeometry(Part.ArcOfCircle(Part.Circle(Vector(-130.18, 1393.83, 0), Vector(0, 0, 1), 3.17), math.radians(0), math.radians(90)), False)
sketch8.addGeometry(Part.LineSegment(Vector(-130.18, 1397, 0), Vector(-149.22, 1397, 0)), False)
sketch8.addGeometry(Part.ArcOfCircle(Part.Circle(Vector(-149.22, 1393.83, 0), Vector(0, 0, 1), 3.17), math.radians(90), math.radians(180)), False)
sketch8.addGeometry(Part.LineSegment(Vector(-152.4, 1393.83, 0), Vector(-152.4, 1374.78, 0)), False)
sketch8.addGeometry(Part.LineSegment(Vector(-130.18, 1374.65, 0), Vector(-149.22, 1374.65, 0)), False)
sketch8.addGeometry(Part.ArcOfCircle(Part.Circle(Vector(-149.22, 1374.78, 0), Vector(0, 0, 1), 0.13), math.radians(180), math.radians(270)), False)
sketch8.addGeometry(Part.LineSegment(Vector(-149.35, 1374.78, 0), Vector(-149.35, 1393.83, 0)), False)
sketch8.addGeometry(Part.ArcOfCircle(Part.Circle(Vector(-149.22, 1393.83, 0), Vector(0, 0, 1), 0.13), math.radians(90), math.radians(180)), False)
sketch8.addGeometry(Part.LineSegment(Vector(-149.22, 1393.95, 0), Vector(-130.18, 1393.95, 0)), False)
sketch8.addGeometry(Part.ArcOfCircle(Part.Circle(Vector(-130.18, 1393.83, 0), Vector(0, 0, 1), 0.13), math.radians(0), math.radians(90)), False)
sketch8.addGeometry(Part.LineSegment(Vector(-130.05, 1393.83, 0), Vector(-130.05, 1374.78, 0)), False)
sketch8.addGeometry(Part.ArcOfCircle(Part.Circle(Vector(-130.18, 1374.78, 0), Vector(0, 0, 1), 0.13), math.radians(-90), math.radians(0)), False)
sketch8.addConstraint(Sketcher.Constraint("Tangent", 0, 2, 1, 1))
sketch8.addConstraint(Sketcher.Constraint("Tangent", 1, 2, 2, 1))
sketch8.addConstraint(Sketcher.Constraint("Tangent", 2, 2, 3, 1))
sketch8.addConstraint(Sketcher.Constraint("Tangent", 3, 2, 4, 1))
sketch8.addConstraint(Sketcher.Constraint("Tangent", 4, 2, 5, 1))
sketch8.addConstraint(Sketcher.Constraint("Tangent", 5, 2, 6, 1))
sketch8.addConstraint(Sketcher.Constraint("Tangent", 6, 2, 7, 1))
sketch8.addConstraint(Sketcher.Constraint("Tangent", 7, 2, 0, 1))
sketch8.addConstraint(Sketcher.Constraint("Tangent", 8, 2, 9, 2))
sketch8.addConstraint(Sketcher.Constraint("Tangent", 9, 1, 10, 1))
sketch8.addConstraint(Sketcher.Constraint("Tangent", 10, 2, 11, 2))
sketch8.addConstraint(Sketcher.Constraint("Tangent", 11, 1, 12, 1))
sketch8.addConstraint(Sketcher.Constraint("Tangent", 12, 2, 13, 2))
sketch8.addConstraint(Sketcher.Constraint("Tangent", 13, 1, 14, 1))
sketch8.addConstraint(Sketcher.Constraint("Tangent", 14, 2, 15, 2))
sketch8.addConstraint(Sketcher.Constraint("Tangent", 15, 1, 8, 1))
sketch8.addConstraint(Sketcher.Constraint("Horizontal", 1))
sketch8.addConstraint(Sketcher.Constraint("Vertical", 3))
sketch8.addConstraint(Sketcher.Constraint("Horizontal", 5))
sketch8.addConstraint(Sketcher.Constraint("Vertical", 7))
sketch8.addConstraint(Sketcher.Constraint("Horizontal", 8))
sketch8.addConstraint(Sketcher.Constraint("Vertical", 10))
sketch8.addConstraint(Sketcher.Constraint("Horizontal", 12))
sketch8.addConstraint(Sketcher.Constraint("Vertical", 14))
sketch8.addConstraint(Sketcher.Constraint("Coincident", 9, 3, 0, 3))
sketch8.addConstraint(Sketcher.Constraint("Coincident", 11, 3, 6, 3))
sketch8.addConstraint(Sketcher.Constraint("Coincident", 13, 3, 4, 3))
sketch8.addConstraint(Sketcher.Constraint("Equal", 0, 2))
sketch8.addConstraint(Sketcher.Constraint("Equal", 2, 4))
sketch8.addConstraint(Sketcher.Constraint("Equal", 4, 6))
sketch8.addConstraint(Sketcher.Constraint("Equal", 13, 15))
sketch8.addConstraint(Sketcher.Constraint("Equal", 12, 3))
sketch8.addConstraint(Sketcher.Constraint("DistanceY", -1, 1, 0, 2, Q("54 in")))
sketch8.addConstraint(Sketcher.Constraint("DistanceX", 2, 2, -1, 1, Q("5 in")))
sketch8.addConstraint(Sketcher.Constraint("DistanceY", -1, 1, 4, 2, Q("55 in")))
sketch8.addConstraint(Sketcher.Constraint("Radius", 0, Q("0.125 in")))
sketch8.addConstraint(Sketcher.Constraint("Radius", 9, Q("0.005 in")))
pad6 = doc.addObject("PartDesign::Pad", "Pad005")
body5.addObject(pad6)
pad6.Profile = sketch8
pad6.Length = Q("34 in")
pad6.Midplane = True
body6 = doc.addObject("PartDesign::Body", "Body005")

# Sketch on XZ plane
sketch9 = doc.addObject("Sketcher::SketchObject", "Sketch008")
body6.addObject(sketch9)
sketch9.AttachmentSupport = (doc.getObject("XZ_Plane005"), [""])
sketch9.MapMode = "FlatFace"
sketch9.AttachmentOffset = App.Placement(Vector(0, 0, 5.5 * 25.4), App.Rotation())
add_polygon(sketch9, [(-85, 1372), (-156, 1372), (-13, 1228), (-13, 1300)])  # lines 0-3
sketch9.addConstraint(Sketcher.Constraint("Horizontal", 0))
sketch9.addConstraint(Sketcher.Constraint("Vertical", 2))
sketch9.addConstraint(Sketcher.Constraint("Parallel", 1, 3))
sketch9.addConstraint(Sketcher.Constraint("Equal", 0, 2))
sketch9.addConstraint(Sketcher.Constraint("Distance", 1, Q("8 in")))
sketch9.addConstraint(Sketcher.Constraint("Distance", 3, Q("4 in")))
sketch9.addConstraint(Sketcher.Constraint("DistanceY", -1, 1, 0, 2, Q("54 in")))
sketch9.addConstraint(Sketcher.Constraint("DistanceX", 1, 2, -1, 1, Q("0.5 in")))
pad7 = doc.addObject("PartDesign::Pad", "Pad006")
body6.addObject(pad7)
pad7.Profile = sketch9
pad7.Length = Q("0.125 in")
pad7.Midplane = True
body7 = doc.addObject("PartDesign::Body", "Body006")
doc.recompute()

mirroring = doc.addObject("Part::Mirroring", "Mirroring")
mirroring.Source = body6
mirroring.Base = Vector(0, 0, 0)
mirroring.Normal = Vector(1, 0, 0)
body7.BaseFeature = mirroring
doc.recompute()
body8 = doc.addObject("PartDesign::Body", "Body007")

# Sketch on YZ plane
sketch10 = doc.addObject("Sketcher::SketchObject", "Sketch009")
body8.addObject(sketch10)
sketch10.AttachmentSupport = (doc.getObject("YZ_Plane007"), [""])
sketch10.MapMode = "FlatFace"
sketch10.AttachmentOffset = App.Placement(Vector(0, 0, -17 * 25.4), App.Rotation())
add_polygon(sketch10, [(-127, 1422), (-127, 1372), (-152, 1372), (-152, 1422)])  # lines 0-3
sketch10.addConstraint(Sketcher.Constraint("Vertical", 0))
sketch10.addConstraint(Sketcher.Constraint("Horizontal", 1))
sketch10.addConstraint(Sketcher.Constraint("Vertical", 2))
sketch10.addConstraint(Sketcher.Constraint("Horizontal", 3))
sketch10.addConstraint(Sketcher.Constraint("DistanceX", 1, 2, 1, 1, Q("1 in")))
sketch10.addConstraint(Sketcher.Constraint("DistanceY", 0, 2, 0, 1, Q("2 in")))
sketch10.addConstraint(Sketcher.Constraint("DistanceX", 0, 2, -1, 1, Q("5 in")))
sketch10.addConstraint(Sketcher.Constraint("DistanceY", -1, 1, 0, 2, Q("54 in")))
pad8 = doc.addObject("PartDesign::Pad", "Pad007")
body8.addObject(pad8)
pad8.Profile = sketch10
pad8.Length = Q("0.125 in")
pad8.Reversed = True
body9 = doc.addObject("PartDesign::Body", "Body008")
doc.recompute()

mirroring2 = doc.addObject("Part::Mirroring", "Mirroring001")
mirroring2.Source = body8
mirroring2.Base = Vector(0, 0, 0)
mirroring2.Normal = Vector(1, 0, 0)
body9.BaseFeature = mirroring2
doc.recompute()
mirroring.Visibility = False
mirroring2.Visibility = False

doc.recompute()
